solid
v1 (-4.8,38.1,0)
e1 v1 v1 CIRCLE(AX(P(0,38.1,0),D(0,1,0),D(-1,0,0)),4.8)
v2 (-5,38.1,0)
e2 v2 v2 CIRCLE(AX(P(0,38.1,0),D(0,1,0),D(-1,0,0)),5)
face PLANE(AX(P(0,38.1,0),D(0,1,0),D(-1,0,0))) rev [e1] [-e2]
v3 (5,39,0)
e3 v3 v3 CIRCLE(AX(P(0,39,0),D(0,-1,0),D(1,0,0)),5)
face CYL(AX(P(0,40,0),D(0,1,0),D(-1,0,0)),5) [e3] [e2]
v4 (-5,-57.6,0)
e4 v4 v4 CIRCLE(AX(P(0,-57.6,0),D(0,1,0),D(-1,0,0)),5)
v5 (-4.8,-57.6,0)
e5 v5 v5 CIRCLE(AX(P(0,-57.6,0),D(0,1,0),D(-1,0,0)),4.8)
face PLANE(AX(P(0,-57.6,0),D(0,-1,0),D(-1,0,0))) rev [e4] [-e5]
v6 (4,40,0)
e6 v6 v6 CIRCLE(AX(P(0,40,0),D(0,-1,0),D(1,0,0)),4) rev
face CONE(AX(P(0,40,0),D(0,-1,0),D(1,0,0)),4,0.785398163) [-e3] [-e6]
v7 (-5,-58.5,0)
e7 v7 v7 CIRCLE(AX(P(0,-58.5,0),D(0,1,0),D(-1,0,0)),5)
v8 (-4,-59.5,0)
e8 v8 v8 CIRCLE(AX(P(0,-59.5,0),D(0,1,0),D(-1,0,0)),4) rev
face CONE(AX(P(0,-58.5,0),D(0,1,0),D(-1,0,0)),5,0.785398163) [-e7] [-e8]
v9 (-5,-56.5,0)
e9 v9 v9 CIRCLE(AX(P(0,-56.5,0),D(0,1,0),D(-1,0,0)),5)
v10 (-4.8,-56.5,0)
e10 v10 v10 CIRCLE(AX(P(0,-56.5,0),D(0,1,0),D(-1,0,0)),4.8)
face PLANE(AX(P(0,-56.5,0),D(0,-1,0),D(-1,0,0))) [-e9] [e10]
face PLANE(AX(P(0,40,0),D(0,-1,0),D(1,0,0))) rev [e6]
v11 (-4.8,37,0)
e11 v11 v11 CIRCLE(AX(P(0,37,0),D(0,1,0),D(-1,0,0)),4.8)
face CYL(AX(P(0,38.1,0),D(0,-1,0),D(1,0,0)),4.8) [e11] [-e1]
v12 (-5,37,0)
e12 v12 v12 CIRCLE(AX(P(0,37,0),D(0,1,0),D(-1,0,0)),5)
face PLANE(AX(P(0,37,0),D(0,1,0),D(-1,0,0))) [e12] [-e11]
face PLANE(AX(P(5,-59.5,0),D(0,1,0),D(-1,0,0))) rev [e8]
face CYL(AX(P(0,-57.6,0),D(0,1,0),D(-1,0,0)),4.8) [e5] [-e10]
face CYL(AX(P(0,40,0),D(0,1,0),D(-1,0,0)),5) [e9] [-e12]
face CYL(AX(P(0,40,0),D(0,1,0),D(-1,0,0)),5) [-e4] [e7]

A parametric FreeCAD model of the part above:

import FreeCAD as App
import Part
import Sketcher
from FreeCAD import Vector


def edges_at(feature, points):
    """Names of the edges that pass closest to the given points."""
    edges = feature.Shape.Edges
    near = lambda p: min(range(len(edges)), key=lambda i: edges[i].distToShape(Part.Vertex(*p))[0])
    return sorted({f"Edge{near(p) + 1}" for p in points})


def add_polygon(sketch, points):
    """Adds a closed chain of lines whose ends are joined by coincident constraints."""
    first, n = sketch.GeometryCount, len(points)
    for a, b in zip(points, points[1:] + points[:1]):
        sketch.addGeometry(Part.LineSegment(App.Vector(*a, 0), App.Vector(*b, 0)), False)
    for i in range(n):
        sketch.addConstraint(Sketcher.Constraint("Coincident", first + i, 2, first + (i + 1) % n, 1))

doc = App.newDocument("Part")
body = doc.addObject("PartDesign::Body", "Body")

sketch1 = body.newObject("Sketcher::SketchObject", "Sketch")
sketch1.AttachmentSupport = (doc.getObject("XY_Plane"), [""])
sketch1.MapMode = "FlatFace"
add_polygon(sketch1, [(5, 40), (0, 40), (0, -59.5), (5, -59.5)])
sketch1.addConstraint(Sketcher.Constraint("Horizontal", 0))
sketch1.addConstraint(Sketcher.Constraint("Vertical", 1))
sketch1.addConstraint(Sketcher.Constraint("Horizontal", 2))
sketch1.addConstraint(Sketcher.Constraint("Vertical", 3))
sketch1.addConstraint(Sketcher.Constraint("PointOnObject", 0, 2, -2))
sketch1.addConstraint(Sketcher.Constraint("DistanceX", 0, 2, 0, 1, 5.0))
sketch1.addConstraint(Sketcher.Constraint("DistanceY", 1, 2, 1, 1, 99.5))
sketch1.addConstraint(Sketcher.Constraint("DistanceY", -1, 1, 0, 2, 40.0))
revolution = body.newObject("PartDesign::Revolution", "Revolution")
revolution.Profile = sketch1
revolution.ReferenceAxis = (sketch1, ["V_Axis"])
revolution.Angle = 360
doc.recompute()

chamfer = body.newObject("PartDesign::Chamfer", "Chamfer")
chamfer.Base = (revolution, edges_at(revolution, [(5, -59.5, 0), (5, 40, 0)]))
chamfer.Size = 1

sketch2 = body.newObject("Sketcher::SketchObject", "Sketch001")
sketch2.AttachmentSupport = (doc.getObject("XZ_Plane"), [""])
sketch2.MapMode = "FlatFace"
sketch2.AttachmentOffset = App.Placement(Vector(0, 0, -37), App.Rotation())
sketch2.addGeometry(Part.Circle(Vector(0, 0, 0), Vector(0, 0, 1), 5), False)
sketch2.addGeometry(Part.Circle(Vector(0, 0, 0), Vector(0, 0, 1), 4.8), False)
sketch2.addConstraint(Sketcher.Constraint("Coincident", 0, 3, -1, 1))
sketch2.addConstraint(Sketcher.Constraint("Coincident", 1, 3, -1, 1))
sketch2.addConstraint(Sketcher.Constraint("Diameter", 0, 10.0))
sketch2.addConstraint(Sketcher.Constraint("Diameter", 1, 9.6))
pocket1 = body.newObject("PartDesign::Pocket", "Pocket")
pocket1.Profile = sketch2
pocket1.Length = 1.1
doc.recompute()

datumplane = body.newObject("PartDesign::Plane", "DatumPlane")
datumplane.AttachmentSupport = (doc.getObject("XZ_Plane"), [""])
datumplane.MapMode = "FlatFace"
datumplane.AttachmentOffset = App.Placement(Vector(0, 0, 9.75), App.Rotation())
mirrored = body.newObject("PartDesign::Mirrored", "Mirrored")
mirrored.Originals = [pocket1]
mirrored.MirrorPlane = (datumplane, [""])
body.Tip = mirrored

doc.recompute()
